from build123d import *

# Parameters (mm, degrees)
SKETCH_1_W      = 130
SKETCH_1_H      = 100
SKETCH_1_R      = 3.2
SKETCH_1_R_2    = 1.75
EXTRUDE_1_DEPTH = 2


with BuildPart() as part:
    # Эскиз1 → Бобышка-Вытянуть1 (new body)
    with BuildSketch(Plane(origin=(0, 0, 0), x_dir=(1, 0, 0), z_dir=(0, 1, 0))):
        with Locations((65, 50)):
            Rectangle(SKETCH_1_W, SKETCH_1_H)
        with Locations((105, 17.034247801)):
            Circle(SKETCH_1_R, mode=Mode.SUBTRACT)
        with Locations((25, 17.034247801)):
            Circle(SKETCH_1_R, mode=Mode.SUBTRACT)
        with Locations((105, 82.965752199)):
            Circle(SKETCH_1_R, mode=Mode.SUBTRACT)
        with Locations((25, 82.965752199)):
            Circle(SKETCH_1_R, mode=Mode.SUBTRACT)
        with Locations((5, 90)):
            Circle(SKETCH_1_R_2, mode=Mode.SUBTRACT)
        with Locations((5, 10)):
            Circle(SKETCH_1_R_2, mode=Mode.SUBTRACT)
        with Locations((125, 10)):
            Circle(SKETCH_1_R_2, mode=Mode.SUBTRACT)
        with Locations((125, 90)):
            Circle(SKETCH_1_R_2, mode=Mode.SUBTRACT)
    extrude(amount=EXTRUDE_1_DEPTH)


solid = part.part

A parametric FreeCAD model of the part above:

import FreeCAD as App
import Part
import Sketcher
from FreeCAD import Vector
Q = App.Units.Quantity


def add_polygon(sketch, points):
    """Adds a closed chain of lines whose ends are joined by coincident constraints."""
    first, n = sketch.GeometryCount, len(points)
    for a, b in zip(points, points[1:] + points[:1]):
        sketch.addGeometry(Part.LineSegment(App.Vector(*a, 0), App.Vector(*b, 0)), False)
    for i in range(n):
        sketch.addConstraint(Sketcher.Constraint("Coincident", first + i, 2, first + (i + 1) % n, 1))

doc = App.newDocument("Part")
body = doc.addObject("PartDesign::Body", "Body")

sketch1 = body.newObject("Sketcher::SketchObject", "Sketch")
sketch1.AttachmentSupport = (doc.getObject("XZ_Plane"), [""])
sketch1.MapMode = "FlatFace"
add_polygon(sketch1, [(0, -100), (0, 0), (130, 0), (130, -100)])
sketch1.addGeometry(Part.Circle(Vector(5, -10, 0), Vector(0, 0, 1), 1.8), False)
sketch1.addGeometry(Part.Circle(Vector(25, -17, 0), Vector(0, 0, 1), 3.2), False)
sketch1.addGeometry(Part.Circle(Vector(105, -17, 0), Vector(0, 0, 1), 3.2), False)
sketch1.addGeometry(Part.Circle(Vector(125, -10, 0), Vector(0, 0, 1), 1.8), False)
sketch1.addGeometry(Part.Circle(Vector(5, -90, 0), Vector(0, 0, 1), 1.8), False)
sketch1.addGeometry(Part.Circle(Vector(25, -83, 0), Vector(0, 0, 1), 3.2), False)
sketch1.addGeometry(Part.Circle(Vector(105, -83, 0), Vector(0, 0, 1), 3.2), False)
sketch1.addGeometry(Part.Circle(Vector(125, -90, 0), Vector(0, 0, 1), 1.8), False)
sketch1.addConstraint([
    Sketcher.Constraint("Vertical", 0),
    Sketcher.Constraint("Horizontal", 1),
    Sketcher.Constraint("Vertical", 2),
    Sketcher.Constraint("Horizontal", 3),
    Sketcher.Constraint("Coincident", 0, 2, -1, 1),
    Sketcher.Constraint("Equal", 5, 6),
    Sketcher.Constraint("Equal", 4, 7),
    Sketcher.Constraint("Equal", 7, 8),
    Sketcher.Constraint("Equal", 6, 9),
    Sketcher.Constraint("Equal", 9, 10),
    Sketcher.Constraint("Equal", 8, 11),
    Sketcher.Constraint("Horizontal", 5, 3, 6, 3),
    Sketcher.Constraint("Horizontal", 4, 3, 7, 3),
    Sketcher.Constraint("Horizontal", 9, 3, 10, 3),
    Sketcher.Constraint("Horizontal", 8, 3, 11, 3),
    Sketcher.Constraint("Vertical", 4, 3, 8, 3),
    Sketcher.Constraint("Vertical", 5, 3, 9, 3),
    Sketcher.Constraint("Vertical", 6, 3, 10, 3),
    Sketcher.Constraint("Vertical", 7, 3, 11, 3),
    Sketcher.Constraint("Diameter", 4, Q("3.5 mm")),
    Sketcher.Constraint("Diameter", 5, Q("6.4 mm")),
    Sketcher.Constraint("DistanceX", 1, 1, 1, 2, Q("130 mm")),
    Sketcher.Constraint("DistanceY", 0, 1, 0, 2, Q("100 mm")),
    Sketcher.Constraint("DistanceX", -1, 1, 4, 3, Q("5 mm")),
    Sketcher.Constraint("DistanceY", 4, 3, -1, 1, Q("10 mm")),
    Sketcher.Constraint("DistanceX", -1, 1, 5, 3, Q("25 mm")),
    Sketcher.Constraint("DistanceX", -1, 1, 6, 3, Q("105 mm")),
    Sketcher.Constraint("DistanceX", -1, 1, 7, 3, Q("125 mm")),
    Sketcher.Constraint("DistanceY", 8, 3, -1, 1, Q("90 mm")),
    Sketcher.Constraint("DistanceY", 5, 3, -1, 1, Q("17.034248 mm")),
    Sketcher.Constraint("DistanceY", 9, 3, -1, 1, Q("82.965752 mm")),
])
pad1 = body.newObject("PartDesign::Pad", "Pad")
pad1.Profile = sketch1
pad1.Length = 2
pad1.Reversed = True

doc.recompute()
